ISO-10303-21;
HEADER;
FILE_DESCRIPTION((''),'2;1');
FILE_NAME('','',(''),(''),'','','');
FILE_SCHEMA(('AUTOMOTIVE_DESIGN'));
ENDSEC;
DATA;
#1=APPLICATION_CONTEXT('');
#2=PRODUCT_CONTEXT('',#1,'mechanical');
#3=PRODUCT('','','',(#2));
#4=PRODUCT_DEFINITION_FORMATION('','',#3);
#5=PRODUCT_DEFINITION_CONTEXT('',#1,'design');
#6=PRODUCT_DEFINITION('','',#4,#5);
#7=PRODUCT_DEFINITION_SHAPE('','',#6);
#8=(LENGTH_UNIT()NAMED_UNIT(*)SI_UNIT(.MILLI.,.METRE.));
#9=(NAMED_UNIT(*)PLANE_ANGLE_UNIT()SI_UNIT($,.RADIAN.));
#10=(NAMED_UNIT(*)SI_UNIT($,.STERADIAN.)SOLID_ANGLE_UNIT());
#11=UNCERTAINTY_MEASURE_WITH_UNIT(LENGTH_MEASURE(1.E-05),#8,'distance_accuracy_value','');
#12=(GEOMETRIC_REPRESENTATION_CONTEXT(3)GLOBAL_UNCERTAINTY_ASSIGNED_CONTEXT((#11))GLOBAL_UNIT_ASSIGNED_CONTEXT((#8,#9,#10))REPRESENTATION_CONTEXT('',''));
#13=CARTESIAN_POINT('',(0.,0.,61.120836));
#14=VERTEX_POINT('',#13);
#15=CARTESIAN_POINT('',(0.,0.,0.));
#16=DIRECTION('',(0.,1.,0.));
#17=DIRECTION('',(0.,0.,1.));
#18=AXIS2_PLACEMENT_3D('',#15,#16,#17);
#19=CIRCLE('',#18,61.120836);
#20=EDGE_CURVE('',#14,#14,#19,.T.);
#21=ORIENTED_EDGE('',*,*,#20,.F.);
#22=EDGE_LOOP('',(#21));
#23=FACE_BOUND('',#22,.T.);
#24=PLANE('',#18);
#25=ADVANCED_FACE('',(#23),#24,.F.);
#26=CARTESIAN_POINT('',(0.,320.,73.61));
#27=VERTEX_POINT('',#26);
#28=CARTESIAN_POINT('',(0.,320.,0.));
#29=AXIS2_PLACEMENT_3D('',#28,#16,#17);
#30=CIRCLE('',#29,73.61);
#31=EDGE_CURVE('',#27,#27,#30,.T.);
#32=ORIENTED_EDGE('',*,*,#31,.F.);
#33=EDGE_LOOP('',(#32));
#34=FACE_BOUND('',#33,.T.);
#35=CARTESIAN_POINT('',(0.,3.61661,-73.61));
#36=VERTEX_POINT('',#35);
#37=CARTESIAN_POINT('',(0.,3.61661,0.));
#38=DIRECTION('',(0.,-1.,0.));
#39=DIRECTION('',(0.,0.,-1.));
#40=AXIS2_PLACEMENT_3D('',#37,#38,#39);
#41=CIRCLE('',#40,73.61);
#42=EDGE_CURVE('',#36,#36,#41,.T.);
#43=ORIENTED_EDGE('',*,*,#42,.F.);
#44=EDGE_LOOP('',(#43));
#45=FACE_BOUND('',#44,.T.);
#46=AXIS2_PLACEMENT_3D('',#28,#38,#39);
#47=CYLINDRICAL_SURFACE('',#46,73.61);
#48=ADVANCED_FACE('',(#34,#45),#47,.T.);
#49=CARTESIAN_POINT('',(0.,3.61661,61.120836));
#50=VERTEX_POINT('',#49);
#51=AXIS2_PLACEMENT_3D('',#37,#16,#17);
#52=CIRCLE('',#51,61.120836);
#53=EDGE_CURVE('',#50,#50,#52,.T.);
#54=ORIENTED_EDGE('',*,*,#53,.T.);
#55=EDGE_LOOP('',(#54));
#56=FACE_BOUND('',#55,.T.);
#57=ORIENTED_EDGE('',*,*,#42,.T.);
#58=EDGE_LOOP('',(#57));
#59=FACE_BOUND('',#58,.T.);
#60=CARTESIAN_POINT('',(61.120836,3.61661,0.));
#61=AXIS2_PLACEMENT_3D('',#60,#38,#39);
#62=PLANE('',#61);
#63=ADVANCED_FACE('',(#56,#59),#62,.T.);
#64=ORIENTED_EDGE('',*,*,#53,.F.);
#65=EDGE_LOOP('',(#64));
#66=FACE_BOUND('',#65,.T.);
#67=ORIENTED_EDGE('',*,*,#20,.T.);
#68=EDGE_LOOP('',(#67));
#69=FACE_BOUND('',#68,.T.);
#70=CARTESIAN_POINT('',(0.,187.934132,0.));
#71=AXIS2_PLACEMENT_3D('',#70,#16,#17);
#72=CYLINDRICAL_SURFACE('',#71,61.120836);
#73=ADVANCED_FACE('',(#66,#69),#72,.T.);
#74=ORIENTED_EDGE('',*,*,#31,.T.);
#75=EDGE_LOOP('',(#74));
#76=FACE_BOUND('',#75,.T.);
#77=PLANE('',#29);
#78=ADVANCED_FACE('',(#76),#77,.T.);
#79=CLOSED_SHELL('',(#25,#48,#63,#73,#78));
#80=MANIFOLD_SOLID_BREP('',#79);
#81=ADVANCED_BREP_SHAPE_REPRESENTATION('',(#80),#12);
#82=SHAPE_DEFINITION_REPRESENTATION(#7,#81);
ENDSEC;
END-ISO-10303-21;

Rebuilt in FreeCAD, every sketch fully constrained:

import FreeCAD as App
import Part
import Sketcher

V = App.Vector
Q = App.Units.Quantity


def add_polygon(sketch, points):
    """Adds a closed chain of lines whose ends are joined by coincident constraints."""
    first, n = sketch.GeometryCount, len(points)
    for a, b in zip(points, points[1:] + points[:1]):
        sketch.addGeometry(Part.LineSegment(App.Vector(*a, 0), App.Vector(*b, 0)), False)
    for i in range(n):
        sketch.addConstraint(Sketcher.Constraint("Coincident", first + i, 2, first + (i + 1) % n, 1))

doc = App.newDocument("Part")
params = doc.addObject("Spreadsheet::Sheet", "Params")
for row, (alias, value) in enumerate([
    ("sketch1_diameter", "147.22 mm"),
    ("pad1_length", "320 mm"),
    ("groove_angle", "360 deg"),
], start=1):
    params.set(f"A{row}", alias)
    params.set(f"B{row}", "=" + value)
    params.setAlias(f"B{row}", alias)

body = doc.addObject("PartDesign::Body", "Body")

sketch1 = body.newObject("Sketcher::SketchObject", "Sketch")
sketch1.AttachmentSupport = (doc.getObject("XZ_Plane"), [""])
sketch1.MapMode = "FlatFace"
sketch1.addGeometry(Part.Circle(V(0, 0, 0), V(0, 0, 1), 74), False)
sketch1.addConstraint([
    Sketcher.Constraint("Coincident", 0, 3, -1, 1),
    Sketcher.Constraint("Diameter", 0, Q("147.22 mm")),
])
sketch1.setExpression("Constraints[1]", "Params.sketch1_diameter")
pad1 = body.newObject("PartDesign::Pad", "Pad")
pad1.Profile = sketch1
pad1.setExpression("Length", "Params.pad1_length")
pad1.Reversed = True

sketch2 = body.newObject("Sketcher::SketchObject", "Sketch001")
sketch2.AttachmentSupport = (doc.getObject("XY_Plane"), [""])
sketch2.MapMode = "FlatFace"
add_polygon(sketch2, [(61, 4), (61, -8), (89, -8), (89, 4)])
sketch2.addConstraint([
    Sketcher.Constraint("Vertical", 0),
    Sketcher.Constraint("Horizontal", 1),
    Sketcher.Constraint("Vertical", 2),
    Sketcher.Constraint("Horizontal", 3),
    Sketcher.Constraint("DistanceX", 1, 1, 1, 2, Q("28.172886 mm")),
    Sketcher.Constraint("DistanceY", 0, 2, 0, 1, Q("11.937663 mm")),
    Sketcher.Constraint("DistanceY", -1, 1, 2, 2, Q("3.61661 mm")),
    Sketcher.Constraint("DistanceX", -1, 1, 0, 2, Q("61.120836 mm")),
])
groove = body.newObject("PartDesign::Groove", "Groove")
groove.Profile = sketch2
groove.ReferenceAxis = (sketch2, ["V_Axis"])
groove.setExpression("Angle", "Params.groove_angle")

doc.recompute()
